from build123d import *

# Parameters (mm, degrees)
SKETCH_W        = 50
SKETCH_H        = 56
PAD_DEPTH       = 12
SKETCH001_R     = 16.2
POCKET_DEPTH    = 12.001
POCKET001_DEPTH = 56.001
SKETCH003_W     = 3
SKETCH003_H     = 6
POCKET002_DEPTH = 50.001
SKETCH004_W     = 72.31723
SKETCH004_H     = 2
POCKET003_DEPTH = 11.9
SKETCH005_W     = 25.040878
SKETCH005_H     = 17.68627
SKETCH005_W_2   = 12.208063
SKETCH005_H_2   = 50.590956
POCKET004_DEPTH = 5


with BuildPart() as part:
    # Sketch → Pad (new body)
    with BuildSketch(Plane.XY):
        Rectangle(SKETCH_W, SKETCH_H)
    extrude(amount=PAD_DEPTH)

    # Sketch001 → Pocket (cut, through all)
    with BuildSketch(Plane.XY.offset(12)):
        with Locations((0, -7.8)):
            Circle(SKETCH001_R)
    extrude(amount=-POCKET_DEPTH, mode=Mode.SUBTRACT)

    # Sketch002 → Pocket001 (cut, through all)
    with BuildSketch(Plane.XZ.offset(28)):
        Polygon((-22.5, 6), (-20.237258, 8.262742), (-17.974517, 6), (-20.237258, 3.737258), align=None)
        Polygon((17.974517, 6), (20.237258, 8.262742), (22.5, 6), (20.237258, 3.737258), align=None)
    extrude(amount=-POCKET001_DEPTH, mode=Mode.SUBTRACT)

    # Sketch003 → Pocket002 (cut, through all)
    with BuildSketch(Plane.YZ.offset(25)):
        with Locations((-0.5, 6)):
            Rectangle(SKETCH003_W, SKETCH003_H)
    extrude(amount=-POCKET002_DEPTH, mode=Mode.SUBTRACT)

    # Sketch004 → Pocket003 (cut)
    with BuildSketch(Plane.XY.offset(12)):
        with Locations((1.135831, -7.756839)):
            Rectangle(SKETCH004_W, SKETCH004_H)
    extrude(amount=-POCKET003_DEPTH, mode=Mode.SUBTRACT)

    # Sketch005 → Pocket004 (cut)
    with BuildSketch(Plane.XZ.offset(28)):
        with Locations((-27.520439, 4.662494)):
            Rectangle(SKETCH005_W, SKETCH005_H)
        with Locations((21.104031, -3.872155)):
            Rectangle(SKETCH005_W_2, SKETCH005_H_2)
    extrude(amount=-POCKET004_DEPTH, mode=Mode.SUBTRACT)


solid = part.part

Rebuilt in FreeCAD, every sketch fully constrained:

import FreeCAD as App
import Part
import Sketcher

V = App.Vector

doc = App.newDocument("Part")
body = doc.addObject("PartDesign::Body", "Body")

# Sketch on XY plane
sketch1 = doc.addObject("Sketcher::SketchObject", "Sketch")
body.addObject(sketch1)
sketch1.AttachmentSupport = (doc.XY_Plane, [""])
sketch1.MapMode = "FlatFace"
sketch1.addGeometry([
    Part.LineSegment(V(-25, 28, 0), V(-25, -28, 0)),
    Part.LineSegment(V(-25, -28, 0), V(25, -28, 0)),
    Part.LineSegment(V(25, -28, 0), V(25, 28, 0)),
    Part.LineSegment(V(25, 28, 0), V(-25, 28, 0)),
], False)
sketch1.addConstraint([
    Sketcher.Constraint("Coincident", 0, 2, 1, 1),
    Sketcher.Constraint("Coincident", 1, 2, 2, 1),
    Sketcher.Constraint("Coincident", 2, 2, 3, 1),
    Sketcher.Constraint("Coincident", 3, 2, 0, 1),
    Sketcher.Constraint("Vertical", 0),
    Sketcher.Constraint("Horizontal", 1),
    Sketcher.Constraint("Vertical", 2),
    Sketcher.Constraint("Horizontal", 3),
    Sketcher.Constraint("Symmetric", 0, 2, 2, 2, -1, 1),
    Sketcher.Constraint("DistanceX", 1, 1, 1, 2, 50.0),
    Sketcher.Constraint("DistanceY", 0, 2, 0, 1, 56.0),
])
pad1 = doc.addObject("PartDesign::Pad", "Pad")
body.addObject(pad1)
pad1.Profile = sketch1
pad1.Length = 12

# Sketch on XY plane
sketch2 = doc.addObject("Sketcher::SketchObject", "Sketch001")
body.addObject(sketch2)
sketch2.AttachmentSupport = (doc.XY_Plane, [""])
sketch2.MapMode = "FlatFace"
sketch2.AttachmentOffset = App.Placement(V(0, 0, 12), App.Rotation())
sketch2.addGeometry(Part.Circle(V(0, -8, 0), V(0, 0, 1), 16), False)
sketch2.addConstraint([
    Sketcher.Constraint("PointOnObject", 0, 3, -2),
    Sketcher.Constraint("Diameter", 0, 32.4),
    Sketcher.Constraint("DistanceY", 0, 3, -1, 1, 7.8),
])
pocket1 = doc.addObject("PartDesign::Pocket", "Pocket")
body.addObject(pocket1)
pocket1.Profile = sketch2
pocket1.Type = "ThroughAll"

# Sketch on XZ plane
sketch3 = doc.addObject("Sketcher::SketchObject", "Sketch002")
body.addObject(sketch3)
sketch3.AttachmentSupport = (doc.XZ_Plane, [""])
sketch3.MapMode = "FlatFace"
sketch3.AttachmentOffset = App.Placement(V(0, 0, 28), App.Rotation())
sketch3.addGeometry([
    Part.LineSegment(V(-20.2, 8.3, 0), V(-22.5, 6, 0)),  # 0
    Part.LineSegment(V(-22.5, 6, 0), V(-20.2, 3.7, 0)),  # 1
    Part.LineSegment(V(-20.2, 3.7, 0), V(-18, 6, 0)),  # 2
    Part.LineSegment(V(-18, 6, 0), V(-20.2, 8.3, 0)),  # 3
    Part.LineSegment(V(20.2, 8.3, 0), V(18, 6, 0)),  # 4
    Part.LineSegment(V(18, 6, 0), V(20.2, 3.7, 0)),  # 5
    Part.LineSegment(V(20.2, 3.7, 0), V(22.5, 6, 0)),  # 6
    Part.LineSegment(V(22.5, 6, 0), V(20.2, 8.3, 0)),  # 7
], False)
sketch3.addConstraint([
    Sketcher.Constraint("Coincident", 0, 2, 1, 1),
    Sketcher.Constraint("Coincident", 1, 2, 2, 1),
    Sketcher.Constraint("Coincident", 2, 2, 3, 1),
    Sketcher.Constraint("Coincident", 3, 2, 0, 1),
    Sketcher.Constraint("Coincident", 4, 2, 5, 1),
    Sketcher.Constraint("Coincident", 5, 2, 6, 1),
    Sketcher.Constraint("Coincident", 6, 2, 7, 1),
    Sketcher.Constraint("Coincident", 7, 2, 4, 1),
    Sketcher.Constraint("Symmetric", 2, 2, 4, 2, -2),
    Sketcher.Constraint("Symmetric", 1, 2, 5, 2, -2),
    Sketcher.Constraint("Symmetric", 0, 2, 6, 2, -2),
    Sketcher.Constraint("Symmetric", 3, 2, 7, 2, -2),
    Sketcher.Constraint("Perpendicular", 0, 1),
    Sketcher.Constraint("Perpendicular", 1, 2),
    Sketcher.Constraint("Perpendicular", 2, 3),
    Sketcher.Constraint("Perpendicular", 3, 4),
    Sketcher.Constraint("Horizontal", 0, 2, 2, 2),
    Sketcher.Constraint("DistanceY", -1, 1, 0, 2, 6.0),
    Sketcher.Constraint("Distance", 0, 3.2),
    Sketcher.Constraint("DistanceX", 0, 2, -1, 1, 22.5),
])
pocket2 = doc.addObject("PartDesign::Pocket", "Pocket001")
body.addObject(pocket2)
pocket2.Profile = sketch3
pocket2.Type = "ThroughAll"

# Sketch on YZ plane
sketch4 = doc.addObject("Sketcher::SketchObject", "Sketch003")
body.addObject(sketch4)
sketch4.AttachmentSupport = (doc.YZ_Plane, [""])
sketch4.MapMode = "FlatFace"
sketch4.AttachmentOffset = App.Placement(V(0, 0, 25), App.Rotation())
sketch4.addGeometry([
    Part.LineSegment(V(-2, 9, 0), V(-2, 3, 0)),
    Part.LineSegment(V(-2, 3, 0), V(1, 3, 0)),
    Part.LineSegment(V(1, 3, 0), V(1, 9, 0)),
    Part.LineSegment(V(1, 9, 0), V(-2, 9, 0)),
], False)
sketch4.addConstraint([
    Sketcher.Constraint("Coincident", 0, 2, 1, 1),
    Sketcher.Constraint("Coincident", 1, 2, 2, 1),
    Sketcher.Constraint("Coincident", 2, 2, 3, 1),
    Sketcher.Constraint("Coincident", 3, 2, 0, 1),
    Sketcher.Constraint("Vertical", 0),
    Sketcher.Constraint("Horizontal", 1),
    Sketcher.Constraint("Vertical", 2),
    Sketcher.Constraint("Horizontal", 3),
    Sketcher.Constraint("DistanceX", 1, 1, 1, 2, 3.0),
    Sketcher.Constraint("DistanceY", 0, 2, 0, 1, 6.0),
    Sketcher.Constraint("DistanceX", 0, 2, -1, 1, 2.0),
    Sketcher.Constraint("DistanceY", -1, 1, 0, 2, 3.0),
])
pocket3 = doc.addObject("PartDesign::Pocket", "Pocket002")
body.addObject(pocket3)
pocket3.Profile = sketch4
pocket3.Type = "ThroughAll"

# Sketch on XY plane
sketch5 = doc.addObject("Sketcher::SketchObject", "Sketch004")
body.addObject(sketch5)
sketch5.AttachmentSupport = (doc.XY_Plane, [""])
sketch5.MapMode = "FlatFace"
sketch5.AttachmentOffset = App.Placement(V(0, 0, 12), App.Rotation())
sketch5.addGeometry([
    Part.LineSegment(V(-35, -6.8, 0), V(-35, -8.8, 0)),
    Part.LineSegment(V(-35, -8.8, 0), V(37.3, -8.8, 0)),
    Part.LineSegment(V(37.3, -8.8, 0), V(37.3, -6.8, 0)),
    Part.LineSegment(V(37.3, -6.8, 0), V(-35, -6.8, 0)),
], False)
sketch5.addConstraint([
    Sketcher.Constraint("Coincident", 0, 2, 1, 1),
    Sketcher.Constraint("Coincident", 1, 2, 2, 1),
    Sketcher.Constraint("Coincident", 2, 2, 3, 1),
    Sketcher.Constraint("Coincident", 3, 2, 0, 1),
    Sketcher.Constraint("Vertical", 0),
    Sketcher.Constraint("Horizontal", 1),
    Sketcher.Constraint("Vertical", 2),
    Sketcher.Constraint("Horizontal", 3),
    Sketcher.Constraint("DistanceY", 0, 2, 0, 1, 2.0),
    Sketcher.Constraint("DistanceX", 1, 1, 1, 2, 72.31723),
    Sketcher.Constraint("DistanceY", 0, 2, -1, 1, 8.756839),
    Sketcher.Constraint("DistanceX", 0, 2, -1, 1, 35.022784),
])
pocket4 = doc.addObject("PartDesign::Pocket", "Pocket003")
body.addObject(pocket4)
pocket4.Profile = sketch5
pocket4.Length = 11.9

# Sketch on XZ plane
sketch6 = doc.addObject("Sketcher::SketchObject", "Sketch005")
body.addObject(sketch6)
sketch6.AttachmentSupport = (doc.XZ_Plane, [""])
sketch6.MapMode = "FlatFace"
sketch6.AttachmentOffset = App.Placement(V(0, 0, 28), App.Rotation())
sketch6.addGeometry([
    Part.LineSegment(V(-40, 14, 0), V(-40, -4, 0)),  # 0
    Part.LineSegment(V(-40, -4, 0), V(-15, -4, 0)),  # 1
    Part.LineSegment(V(-15, -4, 0), V(-15, 14, 0)),  # 2
    Part.LineSegment(V(-15, 14, 0), V(-40, 14, 0)),  # 3
    Part.LineSegment(V(15, 21, 0), V(15, -29, 0)),  # 4
    Part.LineSegment(V(15, -29, 0), V(27, -29, 0)),  # 5
    Part.LineSegment(V(27, -29, 0), V(27, 21, 0)),  # 6
    Part.LineSegment(V(27, 21, 0), V(15, 21, 0)),  # 7
], False)
sketch6.addConstraint([
    Sketcher.Constraint("Coincident", 0, 2, 1, 1),
    Sketcher.Constraint("Coincident", 1, 2, 2, 1),
    Sketcher.Constraint("Coincident", 2, 2, 3, 1),
    Sketcher.Constraint("Coincident", 3, 2, 0, 1),
    Sketcher.Constraint("Coincident", 4, 2, 5, 1),
    Sketcher.Constraint("Coincident", 5, 2, 6, 1),
    Sketcher.Constraint("Coincident", 6, 2, 7, 1),
    Sketcher.Constraint("Coincident", 7, 2, 4, 1),
    Sketcher.Constraint("Vertical", 0),
    Sketcher.Constraint("Horizontal", 1),
    Sketcher.Constraint("Vertical", 2),
    Sketcher.Constraint("Horizontal", 3),
    Sketcher.Constraint("Vertical", 4),
    Sketcher.Constraint("Horizontal", 5),
    Sketcher.Constraint("Vertical", 6),
    Sketcher.Constraint("Horizontal", 7),
    Sketcher.Constraint("DistanceX", 1, 2, -1, 1, 15.0),
    Sketcher.Constraint("DistanceX", -1, 1, 4, 2, 14.999999),
    Sketcher.Constraint("DistanceY", 0, 2, 0, 1, 17.68627),
    Sketcher.Constraint("DistanceX", 1, 1, 1, 2, 25.040878),
    Sketcher.Constraint("DistanceX", 5, 1, 5, 2, 12.208063),
    Sketcher.Constraint("DistanceY", 4, 2, 4, 1, 50.590956),
    Sketcher.Constraint("DistanceY", 0, 2, -1, 1, 4.180641),
    Sketcher.Constraint("DistanceY", 4, 2, -1, 1, 29.167633),
])
pocket5 = doc.addObject("PartDesign::Pocket", "Pocket004")
body.addObject(pocket5)
pocket5.Profile = sketch6
pocket5.Length = 5

doc.recompute()
